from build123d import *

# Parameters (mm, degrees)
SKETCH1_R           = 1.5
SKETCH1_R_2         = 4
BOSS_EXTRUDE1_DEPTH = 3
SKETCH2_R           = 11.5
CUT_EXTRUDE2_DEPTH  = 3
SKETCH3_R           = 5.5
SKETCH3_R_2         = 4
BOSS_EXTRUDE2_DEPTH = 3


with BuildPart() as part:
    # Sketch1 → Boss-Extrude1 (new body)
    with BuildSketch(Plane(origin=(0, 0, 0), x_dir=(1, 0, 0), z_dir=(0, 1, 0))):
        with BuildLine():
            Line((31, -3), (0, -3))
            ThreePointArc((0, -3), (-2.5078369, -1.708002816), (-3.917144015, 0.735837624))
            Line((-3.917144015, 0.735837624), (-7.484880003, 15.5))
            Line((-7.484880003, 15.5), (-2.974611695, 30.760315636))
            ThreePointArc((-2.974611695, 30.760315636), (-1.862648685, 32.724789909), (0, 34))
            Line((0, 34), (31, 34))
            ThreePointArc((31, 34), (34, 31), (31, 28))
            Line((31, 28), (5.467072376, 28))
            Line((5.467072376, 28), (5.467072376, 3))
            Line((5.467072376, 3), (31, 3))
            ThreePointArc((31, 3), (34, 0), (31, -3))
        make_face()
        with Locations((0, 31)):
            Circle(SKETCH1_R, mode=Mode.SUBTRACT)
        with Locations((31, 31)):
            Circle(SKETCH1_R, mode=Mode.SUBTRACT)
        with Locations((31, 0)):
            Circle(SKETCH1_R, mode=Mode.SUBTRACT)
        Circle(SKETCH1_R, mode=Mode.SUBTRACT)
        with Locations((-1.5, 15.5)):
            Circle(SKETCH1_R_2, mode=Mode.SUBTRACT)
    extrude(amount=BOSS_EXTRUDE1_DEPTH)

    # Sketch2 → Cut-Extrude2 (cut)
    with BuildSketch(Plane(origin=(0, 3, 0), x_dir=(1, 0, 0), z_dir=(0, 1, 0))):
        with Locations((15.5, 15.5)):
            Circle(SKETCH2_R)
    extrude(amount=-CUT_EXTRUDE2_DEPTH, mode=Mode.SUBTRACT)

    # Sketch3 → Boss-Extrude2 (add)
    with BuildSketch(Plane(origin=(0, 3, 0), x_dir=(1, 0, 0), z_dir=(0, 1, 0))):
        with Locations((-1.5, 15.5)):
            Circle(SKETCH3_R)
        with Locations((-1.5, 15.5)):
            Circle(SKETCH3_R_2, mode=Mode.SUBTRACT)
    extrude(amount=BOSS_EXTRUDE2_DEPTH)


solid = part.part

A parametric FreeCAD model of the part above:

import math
import FreeCAD as App
import Part
import Sketcher
from FreeCAD import Vector
Q = App.Units.Quantity

doc = App.newDocument("Part")
params = doc.addObject("Spreadsheet::Sheet", "Params")
for row, (alias, value) in enumerate([
    ("sketch1_diameter", "3 mm"),
    ("sketch1_diameter2", "8 mm"),
    ("sketch1_radius", "3 mm"),
    ("sketch1_radius2", "5 mm"),
    ("sketch1_width", "31 mm"),
    ("pad1_length", "3 mm"),
    ("sketch2_diameter", "23 mm"),
    ("pocket1_length", "3 mm"),
    ("sketch3_diameter", "11 mm"),
    ("sketch3_diameter2", "8 mm"),
    ("pad2_length", "3 mm"),
], start=1):
    params.set(f"A{row}", alias)
    params.set(f"B{row}", "=" + value)
    params.setAlias(f"B{row}", alias)

body = doc.addObject("PartDesign::Body", "Body")

sketch1 = body.newObject("Sketcher::SketchObject", "Sketch")
sketch1.AttachmentSupport = (doc.getObject("XZ_Plane"), [""])
sketch1.MapMode = "FlatFace"
sketch1.addGeometry([
    Part.LineSegment(Vector(0, 3, 0), Vector(31, 3, 0)),
    Part.ArcOfCircle(Part.Circle(Vector(31, 0, 0), Vector(0, 0, 1), 3), math.radians(-90), math.radians(90)),
    Part.LineSegment(Vector(31, -3, 0), Vector(5.467072, -3, 0)),
    Part.LineSegment(Vector(5.467072, -3, 0), Vector(5.467072, -28, 0)),
    Part.LineSegment(Vector(5.467072, -28, 0), Vector(31, -28, 0)),
    Part.ArcOfCircle(Part.Circle(Vector(31, -31, 0), Vector(0, 0, 1), 3), math.radians(-90), math.radians(90)),
    Part.LineSegment(Vector(31, -34, 0), Vector(0, -34, 0)),
    Part.ArcOfCircle(Part.Circle(Vector(1.820345, -29.34314, 0), Vector(0, 0, 1), 5), math.radians(-163.534672), math.radians(-111.350304)),
    Part.LineSegment(Vector(-2.974612, -30.760316, 0), Vector(-7.48488, -15.5, 0)),
    Part.LineSegment(Vector(-7.48488, -15.5, 0), Vector(-3.917144, -0.735838, 0)),
    Part.ArcOfCircle(Part.Circle(Vector(0.942969, -1.910276, 0), Vector(0, 0, 1), 5), math.radians(100.870727), math.radians(166.414999)),
    Part.Circle(Vector(31, 0, 0), Vector(0, 0, 1), 1.5),
    Part.Circle(Vector(0, 0, 0), Vector(0, 0, 1), 1.5),
    Part.Circle(Vector(31, -31, 0), Vector(0, 0, 1), 1.5),
    Part.Circle(Vector(-1.5, -15.5, 0), Vector(0, 0, 1), 4),
    Part.Circle(Vector(0, -31, 0), Vector(0, 0, 1), 1.5),
], False)
sketch1.addConstraint([
    Sketcher.Constraint("Tangent", 0, 2, 1, 2),
    Sketcher.Constraint("Tangent", 1, 1, 2, 1),
    Sketcher.Constraint("Coincident", 2, 2, 3, 1),
    Sketcher.Constraint("Coincident", 3, 2, 4, 1),
    Sketcher.Constraint("Tangent", 4, 2, 5, 2),
    Sketcher.Constraint("Tangent", 5, 1, 6, 1),
    Sketcher.Constraint("Coincident", 6, 2, 7, 2),
    Sketcher.Constraint("Tangent", 7, 1, 8, 1),
    Sketcher.Constraint("Coincident", 8, 2, 9, 1),
    Sketcher.Constraint("Tangent", 9, 2, 10, 2),
    Sketcher.Constraint("Coincident", 10, 1, 0, 1),
    Sketcher.Constraint("Horizontal", 0),
    Sketcher.Constraint("Horizontal", 2),
    Sketcher.Constraint("Vertical", 3),
    Sketcher.Constraint("Horizontal", 4),
    Sketcher.Constraint("Horizontal", 6),
    Sketcher.Constraint("Coincident", 12, 3, -1, 1),
    Sketcher.Constraint("Coincident", 11, 3, 1, 3),
    Sketcher.Constraint("Coincident", 13, 3, 5, 3),
    Sketcher.Constraint("Equal", 1, 5),
    Sketcher.Constraint("Equal", 7, 10),
    Sketcher.Constraint("Equal", 11, 12),
    Sketcher.Constraint("Equal", 12, 13),
    Sketcher.Constraint("Equal", 13, 15),
    Sketcher.Constraint("PointOnObject", 1, 3, -1),
    Sketcher.Constraint("PointOnObject", 15, 3, -2),
    Sketcher.Constraint("PointOnObject", 6, 2, -2),
    Sketcher.Constraint("PointOnObject", 10, 1, -2),
    Sketcher.Constraint("Horizontal", 13, 3, 15, 3),
    Sketcher.Constraint("Horizontal", 14, 3, 8, 2),
    Sketcher.Constraint("Vertical", 1, 3, 5, 3),
    Sketcher.Constraint("Diameter", 11, Q("3 mm")),
    Sketcher.Constraint("Diameter", 14, Q("8 mm")),
    Sketcher.Constraint("Radius", 1, Q("3 mm")),
    Sketcher.Constraint("Radius", 7, Q("5 mm")),
    Sketcher.Constraint("DistanceX", 0, 1, 0, 2, Q("31 mm")),
    Sketcher.Constraint("DistanceY", 3, 2, 3, 1, Q("25 mm")),
    Sketcher.Constraint("DistanceX", 14, 3, -1, 1, Q("1.5 mm")),
    Sketcher.Constraint("DistanceY", 14, 3, -1, 1, Q("15.5 mm")),
    Sketcher.Constraint("Distance", 8, Q("15.91288 mm")),
    Sketcher.Constraint("DistanceX", 2, 2, 2, 1, Q("25.532928 mm")),
    Sketcher.Constraint("DistanceY", 7, 3, -1, 1, Q("29.34314 mm")),
    Sketcher.Constraint("DistanceX", -1, 1, 10, 3, Q("0.942969 mm")),
])
sketch1.setExpression("Constraints[31]", "Params.sketch1_diameter")
sketch1.setExpression("Constraints[32]", "Params.sketch1_diameter2")
sketch1.setExpression("Constraints[33]", "Params.sketch1_radius")
sketch1.setExpression("Constraints[34]", "Params.sketch1_radius2")
sketch1.setExpression("Constraints[35]", "Params.sketch1_width")
pad1 = body.newObject("PartDesign::Pad", "Pad")
pad1.Profile = sketch1
pad1.setExpression("Length", "Params.pad1_length")
pad1.Reversed = True

sketch2 = body.newObject("Sketcher::SketchObject", "Sketch001")
sketch2.AttachmentSupport = (doc.getObject("XZ_Plane"), [""])
sketch2.MapMode = "FlatFace"
sketch2.AttachmentOffset = App.Placement(Vector(0, 0, -3), App.Rotation())
sketch2.addGeometry(Part.Circle(Vector(15.5, -15.5, 0), Vector(0, 0, 1), 11.5), False)
sketch2.addConstraint([
    Sketcher.Constraint("Diameter", 0, Q("23 mm")),
    Sketcher.Constraint("DistanceX", -1, 1, 0, 3, Q("15.5 mm")),
    Sketcher.Constraint("DistanceY", 0, 3, -1, 1, Q("15.5 mm")),
])
sketch2.setExpression("Constraints[0]", "Params.sketch2_diameter")
pocket1 = body.newObject("PartDesign::Pocket", "Pocket")
pocket1.Profile = sketch2
pocket1.setExpression("Length", "Params.pocket1_length")
pocket1.Reversed = True

sketch3 = body.newObject("Sketcher::SketchObject", "Sketch002")
sketch3.AttachmentSupport = (doc.getObject("XZ_Plane"), [""])
sketch3.MapMode = "FlatFace"
sketch3.AttachmentOffset = App.Placement(Vector(0, 0, -3), App.Rotation())
sketch3.addGeometry([
    Part.Circle(Vector(-1.5, -15.5, 0), Vector(0, 0, 1), 5.5),
    Part.Circle(Vector(-1.5, -15.5, 0), Vector(0, 0, 1), 4),
], False)
sketch3.addConstraint([
    Sketcher.Constraint("Coincident", 1, 3, 0, 3),
    Sketcher.Constraint("Diameter", 0, Q("11 mm")),
    Sketcher.Constraint("Diameter", 1, Q("8 mm")),
    Sketcher.Constraint("DistanceX", 0, 3, -1, 1, Q("1.5 mm")),
    Sketcher.Constraint("DistanceY", 0, 3, -1, 1, Q("15.5 mm")),
])
sketch3.setExpression("Constraints[1]", "Params.sketch3_diameter")
sketch3.setExpression("Constraints[2]", "Params.sketch3_diameter2")
pad2 = body.newObject("PartDesign::Pad", "Pad001")
pad2.Profile = sketch3
pad2.setExpression("Length", "Params.pad2_length")
pad2.Reversed = True

doc.recompute()
